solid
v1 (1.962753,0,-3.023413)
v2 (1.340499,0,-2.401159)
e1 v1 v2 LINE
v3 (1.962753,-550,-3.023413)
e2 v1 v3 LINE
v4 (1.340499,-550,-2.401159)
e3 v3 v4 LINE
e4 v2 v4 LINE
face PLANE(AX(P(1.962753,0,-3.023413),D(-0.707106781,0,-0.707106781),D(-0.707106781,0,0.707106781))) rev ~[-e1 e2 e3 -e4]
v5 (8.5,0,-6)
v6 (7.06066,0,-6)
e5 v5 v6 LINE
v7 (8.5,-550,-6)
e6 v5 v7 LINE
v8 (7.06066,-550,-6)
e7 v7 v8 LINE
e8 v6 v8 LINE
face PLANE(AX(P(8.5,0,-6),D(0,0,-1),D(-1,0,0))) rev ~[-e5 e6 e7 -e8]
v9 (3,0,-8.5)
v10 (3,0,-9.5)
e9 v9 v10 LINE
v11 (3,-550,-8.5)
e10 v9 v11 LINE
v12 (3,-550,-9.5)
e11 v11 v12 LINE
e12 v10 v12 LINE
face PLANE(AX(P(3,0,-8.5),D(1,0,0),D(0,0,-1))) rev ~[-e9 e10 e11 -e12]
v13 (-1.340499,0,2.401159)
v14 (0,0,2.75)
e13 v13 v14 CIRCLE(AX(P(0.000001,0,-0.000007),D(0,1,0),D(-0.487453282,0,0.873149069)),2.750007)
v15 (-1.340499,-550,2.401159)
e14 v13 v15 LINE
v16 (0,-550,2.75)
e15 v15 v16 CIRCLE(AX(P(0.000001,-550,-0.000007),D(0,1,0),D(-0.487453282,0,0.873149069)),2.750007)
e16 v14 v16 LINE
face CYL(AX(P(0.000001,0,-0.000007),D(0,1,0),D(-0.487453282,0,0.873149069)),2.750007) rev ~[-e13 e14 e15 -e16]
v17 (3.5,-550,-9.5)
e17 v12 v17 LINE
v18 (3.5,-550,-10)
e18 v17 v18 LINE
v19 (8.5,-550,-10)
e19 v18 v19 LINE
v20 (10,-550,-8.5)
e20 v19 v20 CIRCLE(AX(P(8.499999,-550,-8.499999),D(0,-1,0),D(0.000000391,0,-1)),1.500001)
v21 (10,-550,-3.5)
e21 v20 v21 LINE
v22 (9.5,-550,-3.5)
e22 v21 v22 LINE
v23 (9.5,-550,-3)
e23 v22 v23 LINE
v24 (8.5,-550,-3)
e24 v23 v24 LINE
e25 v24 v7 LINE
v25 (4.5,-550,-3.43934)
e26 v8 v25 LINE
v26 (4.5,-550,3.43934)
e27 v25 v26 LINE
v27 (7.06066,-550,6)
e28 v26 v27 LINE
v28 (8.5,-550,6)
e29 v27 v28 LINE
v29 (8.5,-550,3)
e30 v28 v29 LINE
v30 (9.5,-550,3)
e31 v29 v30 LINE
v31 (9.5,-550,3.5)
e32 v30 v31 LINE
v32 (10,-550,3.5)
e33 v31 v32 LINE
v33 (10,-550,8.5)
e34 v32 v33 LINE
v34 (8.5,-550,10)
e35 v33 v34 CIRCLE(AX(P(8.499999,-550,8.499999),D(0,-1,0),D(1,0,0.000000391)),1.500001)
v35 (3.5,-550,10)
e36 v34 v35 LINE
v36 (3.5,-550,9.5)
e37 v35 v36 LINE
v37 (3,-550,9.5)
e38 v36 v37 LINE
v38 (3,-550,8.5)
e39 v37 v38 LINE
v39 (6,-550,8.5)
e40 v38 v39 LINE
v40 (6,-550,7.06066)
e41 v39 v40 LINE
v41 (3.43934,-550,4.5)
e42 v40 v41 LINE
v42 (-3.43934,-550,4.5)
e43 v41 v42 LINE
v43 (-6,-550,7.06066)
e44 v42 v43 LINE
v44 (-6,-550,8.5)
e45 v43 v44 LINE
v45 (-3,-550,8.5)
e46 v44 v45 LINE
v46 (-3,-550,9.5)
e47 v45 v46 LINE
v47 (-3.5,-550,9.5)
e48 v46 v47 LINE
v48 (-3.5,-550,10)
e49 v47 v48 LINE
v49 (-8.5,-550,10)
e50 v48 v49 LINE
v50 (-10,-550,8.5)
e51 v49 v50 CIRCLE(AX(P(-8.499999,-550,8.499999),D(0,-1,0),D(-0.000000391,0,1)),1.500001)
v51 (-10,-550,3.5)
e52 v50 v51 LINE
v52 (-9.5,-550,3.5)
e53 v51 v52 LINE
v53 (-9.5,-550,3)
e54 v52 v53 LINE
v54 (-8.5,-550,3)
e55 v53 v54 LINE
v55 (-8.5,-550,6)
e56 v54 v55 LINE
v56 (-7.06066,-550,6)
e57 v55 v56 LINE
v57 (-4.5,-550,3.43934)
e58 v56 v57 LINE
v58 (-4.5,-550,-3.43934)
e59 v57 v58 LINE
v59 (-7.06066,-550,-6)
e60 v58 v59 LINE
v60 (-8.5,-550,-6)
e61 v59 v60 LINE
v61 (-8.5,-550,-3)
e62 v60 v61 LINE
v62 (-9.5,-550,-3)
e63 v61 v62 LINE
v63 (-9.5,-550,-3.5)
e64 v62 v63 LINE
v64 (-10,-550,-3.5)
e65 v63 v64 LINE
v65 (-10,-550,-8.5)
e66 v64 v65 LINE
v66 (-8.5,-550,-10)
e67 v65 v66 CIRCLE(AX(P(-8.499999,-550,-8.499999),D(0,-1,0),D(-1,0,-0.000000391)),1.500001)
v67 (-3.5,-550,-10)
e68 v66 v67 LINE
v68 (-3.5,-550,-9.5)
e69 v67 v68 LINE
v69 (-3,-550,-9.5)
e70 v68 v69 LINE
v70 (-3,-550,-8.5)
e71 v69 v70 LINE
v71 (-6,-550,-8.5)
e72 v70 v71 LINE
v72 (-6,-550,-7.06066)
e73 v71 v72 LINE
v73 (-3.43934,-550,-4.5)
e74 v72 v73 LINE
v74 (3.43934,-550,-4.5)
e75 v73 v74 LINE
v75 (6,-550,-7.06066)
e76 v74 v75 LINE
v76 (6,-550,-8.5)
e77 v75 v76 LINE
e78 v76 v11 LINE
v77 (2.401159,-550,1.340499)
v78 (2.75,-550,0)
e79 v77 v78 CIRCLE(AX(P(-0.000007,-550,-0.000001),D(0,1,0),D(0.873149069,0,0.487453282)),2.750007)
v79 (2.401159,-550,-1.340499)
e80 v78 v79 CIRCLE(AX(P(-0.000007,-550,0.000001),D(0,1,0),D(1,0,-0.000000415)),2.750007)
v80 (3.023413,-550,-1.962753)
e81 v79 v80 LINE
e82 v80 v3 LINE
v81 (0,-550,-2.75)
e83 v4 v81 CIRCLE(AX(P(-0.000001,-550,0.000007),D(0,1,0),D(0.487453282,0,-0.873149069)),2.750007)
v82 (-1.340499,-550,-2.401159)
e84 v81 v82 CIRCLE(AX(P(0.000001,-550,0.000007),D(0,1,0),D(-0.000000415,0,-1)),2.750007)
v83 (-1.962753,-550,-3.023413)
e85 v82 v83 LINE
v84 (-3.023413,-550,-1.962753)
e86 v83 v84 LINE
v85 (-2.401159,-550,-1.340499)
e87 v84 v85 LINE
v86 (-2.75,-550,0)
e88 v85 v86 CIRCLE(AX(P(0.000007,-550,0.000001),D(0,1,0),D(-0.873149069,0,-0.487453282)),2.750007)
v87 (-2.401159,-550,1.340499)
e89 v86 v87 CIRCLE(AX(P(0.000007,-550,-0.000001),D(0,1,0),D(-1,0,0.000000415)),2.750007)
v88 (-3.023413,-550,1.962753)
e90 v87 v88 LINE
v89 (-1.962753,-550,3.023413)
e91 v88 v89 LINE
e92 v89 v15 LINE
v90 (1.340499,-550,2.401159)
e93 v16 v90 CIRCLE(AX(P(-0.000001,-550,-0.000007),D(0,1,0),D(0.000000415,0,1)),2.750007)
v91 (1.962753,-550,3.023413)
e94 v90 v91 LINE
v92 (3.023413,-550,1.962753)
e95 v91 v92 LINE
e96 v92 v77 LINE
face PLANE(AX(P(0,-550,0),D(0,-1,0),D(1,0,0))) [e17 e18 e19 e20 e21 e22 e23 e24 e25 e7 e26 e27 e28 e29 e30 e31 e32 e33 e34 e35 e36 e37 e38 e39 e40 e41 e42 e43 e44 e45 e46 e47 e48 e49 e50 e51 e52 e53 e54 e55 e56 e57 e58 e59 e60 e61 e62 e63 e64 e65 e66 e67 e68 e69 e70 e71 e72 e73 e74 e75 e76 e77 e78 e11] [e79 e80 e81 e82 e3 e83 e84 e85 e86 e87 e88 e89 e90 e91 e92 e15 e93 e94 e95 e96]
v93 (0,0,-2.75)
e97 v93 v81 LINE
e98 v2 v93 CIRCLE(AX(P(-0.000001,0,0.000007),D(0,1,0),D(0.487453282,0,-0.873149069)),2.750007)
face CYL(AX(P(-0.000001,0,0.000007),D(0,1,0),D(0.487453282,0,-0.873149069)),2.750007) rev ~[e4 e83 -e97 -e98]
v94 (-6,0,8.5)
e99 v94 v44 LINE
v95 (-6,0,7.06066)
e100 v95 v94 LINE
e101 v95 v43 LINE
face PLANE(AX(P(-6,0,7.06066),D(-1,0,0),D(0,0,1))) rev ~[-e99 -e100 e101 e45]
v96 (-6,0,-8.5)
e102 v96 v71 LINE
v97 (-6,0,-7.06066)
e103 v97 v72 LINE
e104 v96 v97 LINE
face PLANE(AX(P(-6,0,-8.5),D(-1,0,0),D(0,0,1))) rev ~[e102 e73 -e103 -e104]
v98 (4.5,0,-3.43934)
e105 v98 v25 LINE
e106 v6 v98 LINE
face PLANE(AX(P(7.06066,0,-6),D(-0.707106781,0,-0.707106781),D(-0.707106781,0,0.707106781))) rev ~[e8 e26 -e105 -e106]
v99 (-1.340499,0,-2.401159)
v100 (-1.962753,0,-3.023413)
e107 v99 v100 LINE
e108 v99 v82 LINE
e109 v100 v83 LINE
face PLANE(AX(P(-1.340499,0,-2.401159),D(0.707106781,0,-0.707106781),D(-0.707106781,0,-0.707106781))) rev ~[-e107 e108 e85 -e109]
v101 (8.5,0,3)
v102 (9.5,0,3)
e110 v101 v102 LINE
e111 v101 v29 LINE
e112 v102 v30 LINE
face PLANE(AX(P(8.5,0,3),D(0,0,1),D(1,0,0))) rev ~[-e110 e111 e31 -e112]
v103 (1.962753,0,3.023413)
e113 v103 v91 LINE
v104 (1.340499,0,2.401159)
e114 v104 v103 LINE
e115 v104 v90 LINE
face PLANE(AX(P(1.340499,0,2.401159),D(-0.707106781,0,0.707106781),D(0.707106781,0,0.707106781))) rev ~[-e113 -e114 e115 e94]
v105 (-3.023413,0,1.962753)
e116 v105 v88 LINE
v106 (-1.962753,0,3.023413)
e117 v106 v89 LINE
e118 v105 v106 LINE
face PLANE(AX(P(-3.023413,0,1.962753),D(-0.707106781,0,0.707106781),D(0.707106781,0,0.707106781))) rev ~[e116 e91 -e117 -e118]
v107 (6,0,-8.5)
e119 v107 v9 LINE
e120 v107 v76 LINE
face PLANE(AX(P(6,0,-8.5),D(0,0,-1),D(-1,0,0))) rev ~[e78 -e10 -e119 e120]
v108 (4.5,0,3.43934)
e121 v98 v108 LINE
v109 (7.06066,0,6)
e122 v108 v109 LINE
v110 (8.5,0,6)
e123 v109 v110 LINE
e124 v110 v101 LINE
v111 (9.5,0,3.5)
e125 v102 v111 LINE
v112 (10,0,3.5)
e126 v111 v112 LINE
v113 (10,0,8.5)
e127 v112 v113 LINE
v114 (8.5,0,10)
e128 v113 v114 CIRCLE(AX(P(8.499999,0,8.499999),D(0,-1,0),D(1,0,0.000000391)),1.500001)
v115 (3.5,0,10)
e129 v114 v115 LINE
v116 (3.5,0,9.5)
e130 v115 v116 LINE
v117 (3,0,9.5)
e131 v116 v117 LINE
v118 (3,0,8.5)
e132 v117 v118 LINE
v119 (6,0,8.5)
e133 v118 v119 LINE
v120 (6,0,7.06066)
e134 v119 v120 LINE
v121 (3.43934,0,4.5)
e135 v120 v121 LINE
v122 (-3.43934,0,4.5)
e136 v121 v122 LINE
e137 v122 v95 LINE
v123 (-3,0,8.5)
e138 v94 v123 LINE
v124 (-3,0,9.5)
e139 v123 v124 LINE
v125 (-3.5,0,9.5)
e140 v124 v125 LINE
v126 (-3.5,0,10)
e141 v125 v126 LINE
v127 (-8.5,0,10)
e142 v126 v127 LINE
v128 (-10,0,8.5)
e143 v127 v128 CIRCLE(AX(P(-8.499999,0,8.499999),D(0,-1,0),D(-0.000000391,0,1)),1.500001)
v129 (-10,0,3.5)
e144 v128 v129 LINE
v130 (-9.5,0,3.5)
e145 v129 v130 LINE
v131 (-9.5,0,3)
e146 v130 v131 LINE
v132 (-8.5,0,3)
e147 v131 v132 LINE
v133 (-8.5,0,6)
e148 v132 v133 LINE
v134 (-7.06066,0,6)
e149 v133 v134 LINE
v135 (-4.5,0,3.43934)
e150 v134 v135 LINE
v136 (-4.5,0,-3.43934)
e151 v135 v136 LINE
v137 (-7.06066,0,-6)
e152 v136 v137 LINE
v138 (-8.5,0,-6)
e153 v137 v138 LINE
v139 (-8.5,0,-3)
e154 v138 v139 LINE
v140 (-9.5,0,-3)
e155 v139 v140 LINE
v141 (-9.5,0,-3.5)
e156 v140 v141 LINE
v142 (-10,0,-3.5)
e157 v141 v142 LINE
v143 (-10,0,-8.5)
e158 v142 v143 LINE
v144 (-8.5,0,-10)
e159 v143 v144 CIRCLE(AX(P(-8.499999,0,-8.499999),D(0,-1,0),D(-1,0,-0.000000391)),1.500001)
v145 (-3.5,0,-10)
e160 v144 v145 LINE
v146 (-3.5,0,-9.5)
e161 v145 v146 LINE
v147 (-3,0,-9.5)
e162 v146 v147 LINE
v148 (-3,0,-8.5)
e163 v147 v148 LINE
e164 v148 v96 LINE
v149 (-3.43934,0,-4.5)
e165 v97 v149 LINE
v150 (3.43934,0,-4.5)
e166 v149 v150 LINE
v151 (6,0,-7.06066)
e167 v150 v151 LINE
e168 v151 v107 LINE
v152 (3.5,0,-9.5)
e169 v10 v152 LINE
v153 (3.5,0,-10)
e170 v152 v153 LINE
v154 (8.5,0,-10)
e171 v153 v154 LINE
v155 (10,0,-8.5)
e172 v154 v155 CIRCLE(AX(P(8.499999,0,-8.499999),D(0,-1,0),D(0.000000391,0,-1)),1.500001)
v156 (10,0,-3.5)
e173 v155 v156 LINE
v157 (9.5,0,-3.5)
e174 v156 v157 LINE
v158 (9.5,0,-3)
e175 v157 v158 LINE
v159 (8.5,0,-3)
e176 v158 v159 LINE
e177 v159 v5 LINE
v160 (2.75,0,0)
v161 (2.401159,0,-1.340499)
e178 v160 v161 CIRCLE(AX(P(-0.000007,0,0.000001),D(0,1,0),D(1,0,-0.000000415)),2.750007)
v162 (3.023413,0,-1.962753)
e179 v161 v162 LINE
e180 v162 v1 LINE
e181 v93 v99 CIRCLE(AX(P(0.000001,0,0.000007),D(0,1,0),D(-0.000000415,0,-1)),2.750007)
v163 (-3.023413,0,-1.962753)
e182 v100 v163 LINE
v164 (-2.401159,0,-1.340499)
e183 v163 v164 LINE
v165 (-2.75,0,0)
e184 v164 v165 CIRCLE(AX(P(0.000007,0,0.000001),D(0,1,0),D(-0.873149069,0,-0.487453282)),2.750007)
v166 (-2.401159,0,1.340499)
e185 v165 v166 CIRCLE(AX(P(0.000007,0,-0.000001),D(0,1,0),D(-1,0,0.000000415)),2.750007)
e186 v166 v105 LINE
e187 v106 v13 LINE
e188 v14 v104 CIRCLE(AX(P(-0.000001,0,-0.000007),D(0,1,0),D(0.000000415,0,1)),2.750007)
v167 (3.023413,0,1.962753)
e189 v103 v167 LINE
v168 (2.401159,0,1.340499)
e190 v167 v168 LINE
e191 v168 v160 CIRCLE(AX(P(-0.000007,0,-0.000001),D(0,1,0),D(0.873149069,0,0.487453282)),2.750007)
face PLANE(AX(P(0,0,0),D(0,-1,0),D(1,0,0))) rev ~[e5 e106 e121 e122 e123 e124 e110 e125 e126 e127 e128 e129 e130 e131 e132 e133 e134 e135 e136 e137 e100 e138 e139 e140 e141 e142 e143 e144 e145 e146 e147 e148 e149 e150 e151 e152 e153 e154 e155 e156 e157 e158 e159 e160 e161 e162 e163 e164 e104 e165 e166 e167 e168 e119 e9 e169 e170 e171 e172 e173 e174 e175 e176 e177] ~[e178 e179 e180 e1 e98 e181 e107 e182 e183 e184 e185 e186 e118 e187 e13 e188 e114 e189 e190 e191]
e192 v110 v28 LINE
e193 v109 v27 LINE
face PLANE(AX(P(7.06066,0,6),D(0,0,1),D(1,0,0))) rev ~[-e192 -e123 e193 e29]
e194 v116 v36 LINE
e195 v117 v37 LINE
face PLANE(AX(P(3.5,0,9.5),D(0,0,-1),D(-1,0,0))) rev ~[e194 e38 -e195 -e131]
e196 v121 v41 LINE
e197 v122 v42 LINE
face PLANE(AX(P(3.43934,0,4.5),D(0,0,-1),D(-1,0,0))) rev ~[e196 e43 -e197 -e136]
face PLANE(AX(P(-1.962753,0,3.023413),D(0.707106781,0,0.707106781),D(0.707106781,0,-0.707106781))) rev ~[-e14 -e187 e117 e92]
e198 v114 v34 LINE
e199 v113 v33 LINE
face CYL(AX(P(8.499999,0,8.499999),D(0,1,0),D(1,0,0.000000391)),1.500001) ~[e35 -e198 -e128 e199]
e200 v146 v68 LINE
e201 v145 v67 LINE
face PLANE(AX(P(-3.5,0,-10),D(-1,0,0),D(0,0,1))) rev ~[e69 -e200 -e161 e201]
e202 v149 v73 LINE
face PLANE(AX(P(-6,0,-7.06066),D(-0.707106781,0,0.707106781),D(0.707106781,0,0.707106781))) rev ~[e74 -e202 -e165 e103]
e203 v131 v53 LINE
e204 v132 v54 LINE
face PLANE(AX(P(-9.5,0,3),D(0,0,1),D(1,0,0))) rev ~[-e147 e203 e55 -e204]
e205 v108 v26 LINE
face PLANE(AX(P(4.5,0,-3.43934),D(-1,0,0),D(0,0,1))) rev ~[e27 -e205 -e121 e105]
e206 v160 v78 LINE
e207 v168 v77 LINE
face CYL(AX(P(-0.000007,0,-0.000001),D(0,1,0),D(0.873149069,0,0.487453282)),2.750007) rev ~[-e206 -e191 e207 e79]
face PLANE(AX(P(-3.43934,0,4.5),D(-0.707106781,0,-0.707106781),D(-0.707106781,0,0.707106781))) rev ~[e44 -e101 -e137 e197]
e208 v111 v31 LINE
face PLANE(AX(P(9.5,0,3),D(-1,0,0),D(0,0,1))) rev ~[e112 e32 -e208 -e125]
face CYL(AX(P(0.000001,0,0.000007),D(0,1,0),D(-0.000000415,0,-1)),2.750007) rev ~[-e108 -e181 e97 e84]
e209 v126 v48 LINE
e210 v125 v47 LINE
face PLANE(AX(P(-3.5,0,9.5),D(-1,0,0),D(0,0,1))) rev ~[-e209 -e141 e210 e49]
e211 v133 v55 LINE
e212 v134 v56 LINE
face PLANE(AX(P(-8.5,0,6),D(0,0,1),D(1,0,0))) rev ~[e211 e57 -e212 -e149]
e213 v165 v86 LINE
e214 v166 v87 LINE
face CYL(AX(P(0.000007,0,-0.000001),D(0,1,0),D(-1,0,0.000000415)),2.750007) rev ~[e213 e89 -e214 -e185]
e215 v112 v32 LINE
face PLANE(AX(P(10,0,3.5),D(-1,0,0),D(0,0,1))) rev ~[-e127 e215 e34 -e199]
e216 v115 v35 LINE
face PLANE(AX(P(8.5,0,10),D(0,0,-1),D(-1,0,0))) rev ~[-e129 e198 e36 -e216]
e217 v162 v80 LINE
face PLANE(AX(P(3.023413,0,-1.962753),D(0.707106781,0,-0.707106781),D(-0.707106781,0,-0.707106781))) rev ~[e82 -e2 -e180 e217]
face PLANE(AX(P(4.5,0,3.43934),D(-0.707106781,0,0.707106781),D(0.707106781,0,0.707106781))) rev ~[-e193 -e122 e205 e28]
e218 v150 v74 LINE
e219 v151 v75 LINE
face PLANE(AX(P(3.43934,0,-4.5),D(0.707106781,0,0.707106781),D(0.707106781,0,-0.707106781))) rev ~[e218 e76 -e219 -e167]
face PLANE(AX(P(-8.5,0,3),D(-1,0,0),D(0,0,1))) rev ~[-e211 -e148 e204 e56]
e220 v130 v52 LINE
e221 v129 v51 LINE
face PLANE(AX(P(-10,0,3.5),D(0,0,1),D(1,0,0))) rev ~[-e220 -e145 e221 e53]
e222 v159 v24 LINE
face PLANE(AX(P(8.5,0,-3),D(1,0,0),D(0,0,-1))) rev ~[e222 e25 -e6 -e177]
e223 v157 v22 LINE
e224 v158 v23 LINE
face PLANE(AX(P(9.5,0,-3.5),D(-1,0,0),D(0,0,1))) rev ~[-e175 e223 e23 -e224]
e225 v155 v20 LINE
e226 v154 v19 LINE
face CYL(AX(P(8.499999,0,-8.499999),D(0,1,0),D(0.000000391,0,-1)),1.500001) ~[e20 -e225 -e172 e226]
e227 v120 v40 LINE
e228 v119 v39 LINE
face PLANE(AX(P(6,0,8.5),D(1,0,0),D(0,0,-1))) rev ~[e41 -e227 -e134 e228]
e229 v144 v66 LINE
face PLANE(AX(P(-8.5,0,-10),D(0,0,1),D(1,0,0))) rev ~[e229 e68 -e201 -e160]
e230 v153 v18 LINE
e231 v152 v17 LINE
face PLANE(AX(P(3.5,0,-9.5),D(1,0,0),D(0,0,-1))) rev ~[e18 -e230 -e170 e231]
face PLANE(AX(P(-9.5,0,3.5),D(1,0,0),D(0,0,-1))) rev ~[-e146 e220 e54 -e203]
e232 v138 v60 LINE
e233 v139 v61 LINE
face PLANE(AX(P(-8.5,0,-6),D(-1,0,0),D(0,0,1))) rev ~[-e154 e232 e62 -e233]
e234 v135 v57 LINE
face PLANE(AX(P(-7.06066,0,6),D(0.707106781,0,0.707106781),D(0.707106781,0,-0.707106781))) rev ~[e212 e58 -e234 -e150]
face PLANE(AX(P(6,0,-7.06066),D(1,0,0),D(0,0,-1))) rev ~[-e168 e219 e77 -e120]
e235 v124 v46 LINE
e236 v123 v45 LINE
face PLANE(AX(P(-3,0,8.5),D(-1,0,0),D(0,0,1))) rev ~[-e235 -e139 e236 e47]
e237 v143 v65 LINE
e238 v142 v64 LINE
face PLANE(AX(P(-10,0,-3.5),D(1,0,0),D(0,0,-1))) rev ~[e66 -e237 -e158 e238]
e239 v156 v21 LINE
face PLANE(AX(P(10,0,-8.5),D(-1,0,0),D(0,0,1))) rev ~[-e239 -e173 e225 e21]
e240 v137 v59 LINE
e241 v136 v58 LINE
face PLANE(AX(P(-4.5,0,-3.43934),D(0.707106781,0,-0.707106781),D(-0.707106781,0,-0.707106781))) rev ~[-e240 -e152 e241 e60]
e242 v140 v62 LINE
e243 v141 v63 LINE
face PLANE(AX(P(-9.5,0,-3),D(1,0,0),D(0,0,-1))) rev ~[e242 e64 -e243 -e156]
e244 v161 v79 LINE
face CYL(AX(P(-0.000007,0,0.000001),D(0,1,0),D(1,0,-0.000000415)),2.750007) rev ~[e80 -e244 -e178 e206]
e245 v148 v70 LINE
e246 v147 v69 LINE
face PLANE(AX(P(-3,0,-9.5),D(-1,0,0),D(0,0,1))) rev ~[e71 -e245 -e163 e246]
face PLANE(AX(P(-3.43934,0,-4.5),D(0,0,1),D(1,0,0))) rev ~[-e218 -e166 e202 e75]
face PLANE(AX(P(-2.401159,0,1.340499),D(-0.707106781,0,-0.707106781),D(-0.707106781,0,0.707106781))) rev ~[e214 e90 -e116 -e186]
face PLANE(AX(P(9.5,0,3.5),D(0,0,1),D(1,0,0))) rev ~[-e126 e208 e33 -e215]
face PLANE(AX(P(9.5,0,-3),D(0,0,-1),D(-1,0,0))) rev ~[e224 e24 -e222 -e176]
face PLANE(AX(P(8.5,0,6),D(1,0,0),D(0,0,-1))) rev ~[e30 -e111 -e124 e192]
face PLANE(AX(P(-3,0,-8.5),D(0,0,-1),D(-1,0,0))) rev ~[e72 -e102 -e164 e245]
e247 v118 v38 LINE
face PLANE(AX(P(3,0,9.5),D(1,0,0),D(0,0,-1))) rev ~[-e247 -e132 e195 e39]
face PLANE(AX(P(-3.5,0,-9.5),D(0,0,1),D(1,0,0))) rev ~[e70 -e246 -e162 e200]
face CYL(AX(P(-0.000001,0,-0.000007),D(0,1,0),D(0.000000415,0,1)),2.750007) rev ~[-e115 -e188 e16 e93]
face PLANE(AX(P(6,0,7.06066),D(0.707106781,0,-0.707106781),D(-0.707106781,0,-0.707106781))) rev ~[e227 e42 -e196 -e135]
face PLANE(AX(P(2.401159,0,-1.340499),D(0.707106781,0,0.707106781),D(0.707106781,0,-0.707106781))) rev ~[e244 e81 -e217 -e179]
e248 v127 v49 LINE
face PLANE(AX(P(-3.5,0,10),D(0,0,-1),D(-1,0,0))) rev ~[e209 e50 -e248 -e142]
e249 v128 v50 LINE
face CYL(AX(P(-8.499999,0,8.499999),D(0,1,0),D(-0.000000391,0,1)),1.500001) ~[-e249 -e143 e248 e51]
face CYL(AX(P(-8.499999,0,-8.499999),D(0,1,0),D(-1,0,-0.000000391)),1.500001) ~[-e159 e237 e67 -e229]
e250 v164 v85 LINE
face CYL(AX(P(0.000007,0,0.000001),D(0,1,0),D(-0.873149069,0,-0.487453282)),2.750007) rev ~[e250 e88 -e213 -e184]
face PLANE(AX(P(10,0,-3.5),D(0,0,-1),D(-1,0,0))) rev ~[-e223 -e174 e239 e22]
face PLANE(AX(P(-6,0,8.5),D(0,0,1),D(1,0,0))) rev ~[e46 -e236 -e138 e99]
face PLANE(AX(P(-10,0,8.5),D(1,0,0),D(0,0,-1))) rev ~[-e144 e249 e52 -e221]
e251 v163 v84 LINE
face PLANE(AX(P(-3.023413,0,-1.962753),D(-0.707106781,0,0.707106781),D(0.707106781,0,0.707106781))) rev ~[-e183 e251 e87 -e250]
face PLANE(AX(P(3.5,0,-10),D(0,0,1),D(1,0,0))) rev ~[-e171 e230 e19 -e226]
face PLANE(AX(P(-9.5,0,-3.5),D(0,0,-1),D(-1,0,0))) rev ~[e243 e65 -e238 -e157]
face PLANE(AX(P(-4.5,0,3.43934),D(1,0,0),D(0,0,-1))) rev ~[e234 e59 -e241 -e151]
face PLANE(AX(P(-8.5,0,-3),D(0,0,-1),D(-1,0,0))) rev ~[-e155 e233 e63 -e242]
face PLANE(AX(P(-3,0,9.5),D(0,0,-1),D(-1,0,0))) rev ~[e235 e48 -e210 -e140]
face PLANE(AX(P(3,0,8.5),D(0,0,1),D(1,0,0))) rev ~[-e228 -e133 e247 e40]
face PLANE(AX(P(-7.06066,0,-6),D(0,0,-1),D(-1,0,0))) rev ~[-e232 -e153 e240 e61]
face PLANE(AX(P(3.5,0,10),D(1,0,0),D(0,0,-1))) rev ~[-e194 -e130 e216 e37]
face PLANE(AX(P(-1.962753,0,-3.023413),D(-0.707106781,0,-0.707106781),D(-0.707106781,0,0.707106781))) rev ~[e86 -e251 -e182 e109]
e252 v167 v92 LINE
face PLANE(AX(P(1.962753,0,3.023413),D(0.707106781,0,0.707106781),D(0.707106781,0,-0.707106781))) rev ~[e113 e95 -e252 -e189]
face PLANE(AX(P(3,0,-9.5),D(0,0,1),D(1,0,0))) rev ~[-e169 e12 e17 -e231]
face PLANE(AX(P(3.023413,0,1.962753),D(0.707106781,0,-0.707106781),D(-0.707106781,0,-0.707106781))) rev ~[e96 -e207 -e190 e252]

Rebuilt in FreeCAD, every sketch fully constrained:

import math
import FreeCAD as App
import Part
import Sketcher

V = App.Vector

doc = App.newDocument("Part")
params = doc.addObject("Spreadsheet::Sheet", "Params")
for row, (alias, value) in enumerate([
    ("sketch1_radius", "1.500001 mm"),
    ("sketch1_width", "3 mm"),
    ("sketch1_width2", "5 mm"),
    ("sketch1_width3", "1 mm"),
    ("sketch1_length", "1.5 mm"),
    ("pad1_length", "550 mm"),
], start=1):
    params.set(f"A{row}", alias)
    params.set(f"B{row}", "=" + value)
    params.setAlias(f"B{row}", alias)

body = doc.addObject("PartDesign::Body", "Body")

# Sketch on XZ plane
sketch1 = doc.addObject("Sketcher::SketchObject", "Sketch")
body.addObject(sketch1)
sketch1.AttachmentSupport = (doc.XZ_Plane, [""])
sketch1.MapMode = "FlatFace"
sketch1.addGeometry(Part.LineSegment(V(3.4, 4.5, 0), V(-3.4, 4.5, 0)), False)
sketch1.addGeometry(Part.LineSegment(V(-3.4, 4.5, 0), V(-6, 7.1, 0)), False)
sketch1.addGeometry(Part.LineSegment(V(-6, 7.1, 0), V(-6, 8.5, 0)), False)
sketch1.addGeometry(Part.LineSegment(V(-6, 8.5, 0), V(-3, 8.5, 0)), False)
sketch1.addGeometry(Part.LineSegment(V(-3, 8.5, 0), V(-3, 9.5, 0)), False)
sketch1.addGeometry(Part.LineSegment(V(-3, 9.5, 0), V(-3.5, 9.5, 0)), False)
sketch1.addGeometry(Part.LineSegment(V(-3.5, 9.5, 0), V(-3.5, 10, 0)), False)
sketch1.addGeometry(Part.LineSegment(V(-3.5, 10, 0), V(-8.5, 10, 0)), False)
sketch1.addGeometry(Part.ArcOfCircle(Part.Circle(V(-8.5, 8.5, 0), V(0, 0, 1), 1.5), math.radians(90), math.radians(180)), False)
sketch1.addGeometry(Part.LineSegment(V(-10, 8.5, 0), V(-10, 3.5, 0)), False)
sketch1.addGeometry(Part.LineSegment(V(-10, 3.5, 0), V(-9.5, 3.5, 0)), False)
sketch1.addGeometry(Part.LineSegment(V(-9.5, 3.5, 0), V(-9.5, 3, 0)), False)
sketch1.addGeometry(Part.LineSegment(V(-9.5, 3, 0), V(-8.5, 3, 0)), False)
sketch1.addGeometry(Part.LineSegment(V(-8.5, 3, 0), V(-8.5, 6, 0)), False)
sketch1.addGeometry(Part.LineSegment(V(-8.5, 6, 0), V(-7.1, 6, 0)), False)
sketch1.addGeometry(Part.LineSegment(V(-7.1, 6, 0), V(-4.5, 3.4, 0)), False)
sketch1.addGeometry(Part.LineSegment(V(-4.5, 3.4, 0), V(-4.5, -3.4, 0)), False)
sketch1.addGeometry(Part.LineSegment(V(-4.5, -3.4, 0), V(-7.1, -6, 0)), False)
sketch1.addGeometry(Part.LineSegment(V(-7.1, -6, 0), V(-8.5, -6, 0)), False)
sketch1.addGeometry(Part.LineSegment(V(-8.5, -6, 0), V(-8.5, -3, 0)), False)
sketch1.addGeometry(Part.LineSegment(V(-8.5, -3, 0), V(-9.5, -3, 0)), False)
sketch1.addGeometry(Part.LineSegment(V(-9.5, -3, 0), V(-9.5, -3.5, 0)), False)
sketch1.addGeometry(Part.LineSegment(V(-9.5, -3.5, 0), V(-10, -3.5, 0)), False)
sketch1.addGeometry(Part.LineSegment(V(-10, -3.5, 0), V(-10, -8.5, 0)), False)
sketch1.addGeometry(Part.ArcOfCircle(Part.Circle(V(-8.5, -8.5, 0), V(0, 0, 1), 1.5), math.radians(-180), math.radians(-90)), False)
sketch1.addGeometry(Part.LineSegment(V(-8.5, -10, 0), V(-3.5, -10, 0)), False)
sketch1.addGeometry(Part.LineSegment(V(-3.5, -10, 0), V(-3.5, -9.5, 0)), False)
sketch1.addGeometry(Part.LineSegment(V(-3.5, -9.5, 0), V(-3, -9.5, 0)), False)
sketch1.addGeometry(Part.LineSegment(V(-3, -9.5, 0), V(-3, -8.5, 0)), False)
sketch1.addGeometry(Part.LineSegment(V(-3, -8.5, 0), V(-6, -8.5, 0)), False)
sketch1.addGeometry(Part.LineSegment(V(-6, -8.5, 0), V(-6, -7.1, 0)), False)
sketch1.addGeometry(Part.LineSegment(V(-6, -7.1, 0), V(-3.4, -4.5, 0)), False)
sketch1.addGeometry(Part.LineSegment(V(-3.4, -4.5, 0), V(3.4, -4.5, 0)), False)
sketch1.addGeometry(Part.LineSegment(V(3.4, -4.5, 0), V(6, -7.1, 0)), False)
sketch1.addGeometry(Part.LineSegment(V(6, -7.1, 0), V(6, -8.5, 0)), False)
sketch1.addGeometry(Part.LineSegment(V(6, -8.5, 0), V(3, -8.5, 0)), False)
sketch1.addGeometry(Part.LineSegment(V(3, -8.5, 0), V(3, -9.5, 0)), False)
sketch1.addGeometry(Part.LineSegment(V(3, -9.5, 0), V(3.5, -9.5, 0)), False)
sketch1.addGeometry(Part.LineSegment(V(3.5, -9.5, 0), V(3.5, -10, 0)), False)
sketch1.addGeometry(Part.LineSegment(V(3.5, -10, 0), V(8.5, -10, 0)), False)
sketch1.addGeometry(Part.ArcOfCircle(Part.Circle(V(8.5, -8.5, 0), V(0, 0, 1), 1.5), math.radians(-90), math.radians(0)), False)
sketch1.addGeometry(Part.LineSegment(V(10, -8.5, 0), V(10, -3.5, 0)), False)
sketch1.addGeometry(Part.LineSegment(V(10, -3.5, 0), V(9.5, -3.5, 0)), False)
sketch1.addGeometry(Part.LineSegment(V(9.5, -3.5, 0), V(9.5, -3, 0)), False)
sketch1.addGeometry(Part.LineSegment(V(9.5, -3, 0), V(8.5, -3, 0)), False)
sketch1.addGeometry(Part.LineSegment(V(8.5, -3, 0), V(8.5, -6, 0)), False)
sketch1.addGeometry(Part.LineSegment(V(8.5, -6, 0), V(7.1, -6, 0)), False)
sketch1.addGeometry(Part.LineSegment(V(7.1, -6, 0), V(4.5, -3.4, 0)), False)
sketch1.addGeometry(Part.LineSegment(V(4.5, -3.4, 0), V(4.5, 3.4, 0)), False)
sketch1.addGeometry(Part.LineSegment(V(4.5, 3.4, 0), V(7.1, 6, 0)), False)
sketch1.addGeometry(Part.LineSegment(V(7.1, 6, 0), V(8.5, 6, 0)), False)
sketch1.addGeometry(Part.LineSegment(V(8.5, 6, 0), V(8.5, 3, 0)), False)
sketch1.addGeometry(Part.LineSegment(V(8.5, 3, 0), V(9.5, 3, 0)), False)
sketch1.addGeometry(Part.LineSegment(V(9.5, 3, 0), V(9.5, 3.5, 0)), False)
sketch1.addGeometry(Part.LineSegment(V(9.5, 3.5, 0), V(10, 3.5, 0)), False)
sketch1.addGeometry(Part.LineSegment(V(10, 3.5, 0), V(10, 8.5, 0)), False)
sketch1.addGeometry(Part.ArcOfCircle(Part.Circle(V(8.5, 8.5, 0), V(0, 0, 1), 1.5), math.radians(0), math.radians(90)), False)
sketch1.addGeometry(Part.LineSegment(V(8.5, 10, 0), V(3.5, 10, 0)), False)
sketch1.addGeometry(Part.LineSegment(V(3.5, 10, 0), V(3.5, 9.5, 0)), False)
sketch1.addGeometry(Part.LineSegment(V(3.5, 9.5, 0), V(3, 9.5, 0)), False)
sketch1.addGeometry(Part.LineSegment(V(3, 9.5, 0), V(3, 8.5, 0)), False)
sketch1.addGeometry(Part.LineSegment(V(3, 8.5, 0), V(6, 8.5, 0)), False)
sketch1.addGeometry(Part.LineSegment(V(6, 8.5, 0), V(6, 7.1, 0)), False)
sketch1.addGeometry(Part.LineSegment(V(6, 7.1, 0), V(3.4, 4.5, 0)), False)
sketch1.addGeometry(Part.LineSegment(V(-2, 3, 0), V(-1.3, 2.4, 0)), False)
sketch1.addGeometry(Part.ArcOfCircle(Part.Circle(V(0, 0, 0), V(0, 0, 1), 2.8), math.radians(90), math.radians(119)), False)
sketch1.addGeometry(Part.ArcOfCircle(Part.Circle(V(0, 0, 0), V(0, 0, 1), 2.8), math.radians(61), math.radians(90)), False)
sketch1.addGeometry(Part.LineSegment(V(1.3, 2.4, 0), V(2, 3, 0)), False)
sketch1.addGeometry(Part.LineSegment(V(2, 3, 0), V(3, 2, 0)), False)
sketch1.addGeometry(Part.LineSegment(V(3, 2, 0), V(2.4, 1.3, 0)), False)
sketch1.addGeometry(Part.ArcOfCircle(Part.Circle(V(0, 0, 0), V(0, 0, 1), 2.8), math.radians(0), math.radians(29)), False)
sketch1.addGeometry(Part.ArcOfCircle(Part.Circle(V(0, 0, 0), V(0, 0, 1), 2.8), math.radians(-29), math.radians(0)), False)
sketch1.addGeometry(Part.LineSegment(V(2.4, -1.3, 0), V(3, -2, 0)), False)
sketch1.addGeometry(Part.LineSegment(V(3, -2, 0), V(2, -3, 0)), False)
sketch1.addGeometry(Part.LineSegment(V(2, -3, 0), V(1.3, -2.4, 0)), False)
sketch1.addGeometry(Part.ArcOfCircle(Part.Circle(V(0, 0, 0), V(0, 0, 1), 2.8), math.radians(-90), math.radians(-61)), False)
sketch1.addGeometry(Part.ArcOfCircle(Part.Circle(V(0, 0, 0), V(0, 0, 1), 2.8), math.radians(-119), math.radians(-90)), False)
sketch1.addGeometry(Part.LineSegment(V(-1.3, -2.4, 0), V(-2, -3, 0)), False)
sketch1.addGeometry(Part.LineSegment(V(-2, -3, 0), V(-3, -2, 0)), False)
sketch1.addGeometry(Part.LineSegment(V(-3, -2, 0), V(-2.4, -1.3, 0)), False)
sketch1.addGeometry(Part.ArcOfCircle(Part.Circle(V(0, 0, 0), V(0, 0, 1), 2.8), math.radians(-180), math.radians(-151)), False)
sketch1.addGeometry(Part.ArcOfCircle(Part.Circle(V(0, 0, 0), V(0, 0, 1), 2.8), math.radians(151), math.radians(180)), False)
sketch1.addGeometry(Part.LineSegment(V(-2.4, 1.3, 0), V(-3, 2, 0)), False)
sketch1.addGeometry(Part.LineSegment(V(-3, 2, 0), V(-2, 3, 0)), False)
sketch1.addConstraint(Sketcher.Constraint("Coincident", 0, 2, 1, 1))
sketch1.addConstraint(Sketcher.Constraint("Coincident", 1, 2, 2, 1))
sketch1.addConstraint(Sketcher.Constraint("Coincident", 2, 2, 3, 1))
sketch1.addConstraint(Sketcher.Constraint("Coincident", 3, 2, 4, 1))
sketch1.addConstraint(Sketcher.Constraint("Coincident", 4, 2, 5, 1))
sketch1.addConstraint(Sketcher.Constraint("Coincident", 5, 2, 6, 1))
sketch1.addConstraint(Sketcher.Constraint("Coincident", 6, 2, 7, 1))
sketch1.addConstraint(Sketcher.Constraint("Tangent", 7, 2, 8, 1))
sketch1.addConstraint(Sketcher.Constraint("Tangent", 8, 2, 9, 1))
sketch1.addConstraint(Sketcher.Constraint("Coincident", 9, 2, 10, 1))
sketch1.addConstraint(Sketcher.Constraint("Coincident", 10, 2, 11, 1))
sketch1.addConstraint(Sketcher.Constraint("Coincident", 11, 2, 12, 1))
sketch1.addConstraint(Sketcher.Constraint("Coincident", 12, 2, 13, 1))
sketch1.addConstraint(Sketcher.Constraint("Coincident", 13, 2, 14, 1))
sketch1.addConstraint(Sketcher.Constraint("Coincident", 14, 2, 15, 1))
sketch1.addConstraint(Sketcher.Constraint("Coincident", 15, 2, 16, 1))
sketch1.addConstraint(Sketcher.Constraint("Coincident", 16, 2, 17, 1))
sketch1.addConstraint(Sketcher.Constraint("Coincident", 17, 2, 18, 1))
sketch1.addConstraint(Sketcher.Constraint("Coincident", 18, 2, 19, 1))
sketch1.addConstraint(Sketcher.Constraint("Coincident", 19, 2, 20, 1))
sketch1.addConstraint(Sketcher.Constraint("Coincident", 20, 2, 21, 1))
sketch1.addConstraint(Sketcher.Constraint("Coincident", 21, 2, 22, 1))
sketch1.addConstraint(Sketcher.Constraint("Coincident", 22, 2, 23, 1))
sketch1.addConstraint(Sketcher.Constraint("Tangent", 23, 2, 24, 1))
sketch1.addConstraint(Sketcher.Constraint("Tangent", 24, 2, 25, 1))
sketch1.addConstraint(Sketcher.Constraint("Coincident", 25, 2, 26, 1))
sketch1.addConstraint(Sketcher.Constraint("Coincident", 26, 2, 27, 1))
sketch1.addConstraint(Sketcher.Constraint("Coincident", 27, 2, 28, 1))
sketch1.addConstraint(Sketcher.Constraint("Coincident", 28, 2, 29, 1))
sketch1.addConstraint(Sketcher.Constraint("Coincident", 29, 2, 30, 1))
sketch1.addConstraint(Sketcher.Constraint("Coincident", 30, 2, 31, 1))
sketch1.addConstraint(Sketcher.Constraint("Coincident", 31, 2, 32, 1))
sketch1.addConstraint(Sketcher.Constraint("Coincident", 32, 2, 33, 1))
sketch1.addConstraint(Sketcher.Constraint("Coincident", 33, 2, 34, 1))
sketch1.addConstraint(Sketcher.Constraint("Coincident", 34, 2, 35, 1))
sketch1.addConstraint(Sketcher.Constraint("Coincident", 35, 2, 36, 1))
sketch1.addConstraint(Sketcher.Constraint("Coincident", 36, 2, 37, 1))
sketch1.addConstraint(Sketcher.Constraint("Coincident", 37, 2, 38, 1))
sketch1.addConstraint(Sketcher.Constraint("Coincident", 38, 2, 39, 1))
sketch1.addConstraint(Sketcher.Constraint("Tangent", 39, 2, 40, 1))
sketch1.addConstraint(Sketcher.Constraint("Tangent", 40, 2, 41, 1))
sketch1.addConstraint(Sketcher.Constraint("Coincident", 41, 2, 42, 1))
sketch1.addConstraint(Sketcher.Constraint("Coincident", 42, 2, 43, 1))
sketch1.addConstraint(Sketcher.Constraint("Coincident", 43, 2, 44, 1))
sketch1.addConstraint(Sketcher.Constraint("Coincident", 44, 2, 45, 1))
sketch1.addConstraint(Sketcher.Constraint("Coincident", 45, 2, 46, 1))
sketch1.addConstraint(Sketcher.Constraint("Coincident", 46, 2, 47, 1))
sketch1.addConstraint(Sketcher.Constraint("Coincident", 47, 2, 48, 1))
sketch1.addConstraint(Sketcher.Constraint("Coincident", 48, 2, 49, 1))
sketch1.addConstraint(Sketcher.Constraint("Coincident", 49, 2, 50, 1))
sketch1.addConstraint(Sketcher.Constraint("Coincident", 50, 2, 51, 1))
sketch1.addConstraint(Sketcher.Constraint("Coincident", 51, 2, 52, 1))
sketch1.addConstraint(Sketcher.Constraint("Coincident", 52, 2, 53, 1))
sketch1.addConstraint(Sketcher.Constraint("Coincident", 53, 2, 54, 1))
sketch1.addConstraint(Sketcher.Constraint("Coincident", 54, 2, 55, 1))
sketch1.addConstraint(Sketcher.Constraint("Tangent", 55, 2, 56, 1))
sketch1.addConstraint(Sketcher.Constraint("Tangent", 56, 2, 57, 1))
sketch1.addConstraint(Sketcher.Constraint("Coincident", 57, 2, 58, 1))
sketch1.addConstraint(Sketcher.Constraint("Coincident", 58, 2, 59, 1))
sketch1.addConstraint(Sketcher.Constraint("Coincident", 59, 2, 60, 1))
sketch1.addConstraint(Sketcher.Constraint("Coincident", 60, 2, 61, 1))
sketch1.addConstraint(Sketcher.Constraint("Coincident", 61, 2, 62, 1))
sketch1.addConstraint(Sketcher.Constraint("Coincident", 62, 2, 63, 1))
sketch1.addConstraint(Sketcher.Constraint("Coincident", 63, 2, 0, 1))
sketch1.addConstraint(Sketcher.Constraint("Coincident", 64, 2, 65, 2))
sketch1.addConstraint(Sketcher.Constraint("Tangent", 65, 1, 66, 2))
sketch1.addConstraint(Sketcher.Constraint("Coincident", 66, 1, 67, 1))
sketch1.addConstraint(Sketcher.Constraint("Coincident", 67, 2, 68, 1))
sketch1.addConstraint(Sketcher.Constraint("Coincident", 68, 2, 69, 1))
sketch1.addConstraint(Sketcher.Constraint("Coincident", 69, 2, 70, 2))
sketch1.addConstraint(Sketcher.Constraint("Tangent", 70, 1, 71, 2))
sketch1.addConstraint(Sketcher.Constraint("Coincident", 71, 1, 72, 1))
sketch1.addConstraint(Sketcher.Constraint("Coincident", 72, 2, 73, 1))
sketch1.addConstraint(Sketcher.Constraint("Coincident", 73, 2, 74, 1))
sketch1.addConstraint(Sketcher.Constraint("Coincident", 74, 2, 75, 2))
sketch1.addConstraint(Sketcher.Constraint("Tangent", 75, 1, 76, 2))
sketch1.addConstraint(Sketcher.Constraint("Coincident", 76, 1, 77, 1))
sketch1.addConstraint(Sketcher.Constraint("Coincident", 77, 2, 78, 1))
sketch1.addConstraint(Sketcher.Constraint("Coincident", 78, 2, 79, 1))
sketch1.addConstraint(Sketcher.Constraint("Coincident", 79, 2, 80, 2))
sketch1.addConstraint(Sketcher.Constraint("Tangent", 80, 1, 81, 2))
sketch1.addConstraint(Sketcher.Constraint("Coincident", 81, 1, 82, 1))
sketch1.addConstraint(Sketcher.Constraint("Coincident", 82, 2, 83, 1))
sketch1.addConstraint(Sketcher.Constraint("Coincident", 83, 2, 64, 1))
sketch1.addConstraint(Sketcher.Constraint("Horizontal", 0))
sketch1.addConstraint(Sketcher.Constraint("Vertical", 2))
sketch1.addConstraint(Sketcher.Constraint("Horizontal", 3))
sketch1.addConstraint(Sketcher.Constraint("Vertical", 4))
sketch1.addConstraint(Sketcher.Constraint("Horizontal", 5))
sketch1.addConstraint(Sketcher.Constraint("Vertical", 6))
sketch1.addConstraint(Sketcher.Constraint("Horizontal", 7))
sketch1.addConstraint(Sketcher.Constraint("Vertical", 9))
sketch1.addConstraint(Sketcher.Constraint("Horizontal", 10))
sketch1.addConstraint(Sketcher.Constraint("Vertical", 11))
sketch1.addConstraint(Sketcher.Constraint("Horizontal", 12))
sketch1.addConstraint(Sketcher.Constraint("Vertical", 13))
sketch1.addConstraint(Sketcher.Constraint("Horizontal", 14))
sketch1.addConstraint(Sketcher.Constraint("Vertical", 16))
sketch1.addConstraint(Sketcher.Constraint("Horizontal", 18))
sketch1.addConstraint(Sketcher.Constraint("Vertical", 19))
sketch1.addConstraint(Sketcher.Constraint("Horizontal", 20))
sketch1.addConstraint(Sketcher.Constraint("Vertical", 21))
sketch1.addConstraint(Sketcher.Constraint("Horizontal", 22))
sketch1.addConstraint(Sketcher.Constraint("Vertical", 23))
sketch1.addConstraint(Sketcher.Constraint("Horizontal", 25))
sketch1.addConstraint(Sketcher.Constraint("Vertical", 26))
sketch1.addConstraint(Sketcher.Constraint("Horizontal", 27))
sketch1.addConstraint(Sketcher.Constraint("Vertical", 28))
sketch1.addConstraint(Sketcher.Constraint("Horizontal", 29))
sketch1.addConstraint(Sketcher.Constraint("Vertical", 30))
sketch1.addConstraint(Sketcher.Constraint("Horizontal", 32))
sketch1.addConstraint(Sketcher.Constraint("Vertical", 34))
sketch1.addConstraint(Sketcher.Constraint("Horizontal", 35))
sketch1.addConstraint(Sketcher.Constraint("Vertical", 36))
sketch1.addConstraint(Sketcher.Constraint("Horizontal", 37))
sketch1.addConstraint(Sketcher.Constraint("Vertical", 38))
sketch1.addConstraint(Sketcher.Constraint("Horizontal", 39))
sketch1.addConstraint(Sketcher.Constraint("Vertical", 41))
sketch1.addConstraint(Sketcher.Constraint("Horizontal", 42))
sketch1.addConstraint(Sketcher.Constraint("Vertical", 43))
sketch1.addConstraint(Sketcher.Constraint("Horizontal", 44))
sketch1.addConstraint(Sketcher.Constraint("Vertical", 45))
sketch1.addConstraint(Sketcher.Constraint("Horizontal", 46))
sketch1.addConstraint(Sketcher.Constraint("Vertical", 48))
sketch1.addConstraint(Sketcher.Constraint("Horizontal", 50))
sketch1.addConstraint(Sketcher.Constraint("Vertical", 51))
sketch1.addConstraint(Sketcher.Constraint("Horizontal", 52))
sketch1.addConstraint(Sketcher.Constraint("Vertical", 53))
sketch1.addConstraint(Sketcher.Constraint("Horizontal", 54))
sketch1.addConstraint(Sketcher.Constraint("Vertical", 55))
sketch1.addConstraint(Sketcher.Constraint("Horizontal", 57))
sketch1.addConstraint(Sketcher.Constraint("Vertical", 58))
sketch1.addConstraint(Sketcher.Constraint("Horizontal", 59))
sketch1.addConstraint(Sketcher.Constraint("Vertical", 60))
sketch1.addConstraint(Sketcher.Constraint("Horizontal", 61))
sketch1.addConstraint(Sketcher.Constraint("Vertical", 62))
sketch1.addConstraint(Sketcher.Constraint("Coincident", 65, 3, -1, 1))
sketch1.addConstraint(Sketcher.Constraint("Coincident", 70, 3, -1, 1))
sketch1.addConstraint(Sketcher.Constraint("Coincident", 75, 3, -1, 1))
sketch1.addConstraint(Sketcher.Constraint("Coincident", 80, 3, -1, 1))
sketch1.addConstraint(Sketcher.Constraint("Equal", 8, 24))
sketch1.addConstraint(Sketcher.Constraint("Equal", 24, 40))
sketch1.addConstraint(Sketcher.Constraint("Equal", 40, 56))
sketch1.addConstraint(Sketcher.Constraint("Equal", 65, 66))
sketch1.addConstraint(Sketcher.Constraint("Equal", 66, 70))
sketch1.addConstraint(Sketcher.Constraint("Equal", 70, 71))
sketch1.addConstraint(Sketcher.Constraint("Equal", 71, 75))
sketch1.addConstraint(Sketcher.Constraint("Equal", 75, 76))
sketch1.addConstraint(Sketcher.Constraint("Equal", 76, 80))
sketch1.addConstraint(Sketcher.Constraint("Equal", 80, 81))
sketch1.addConstraint(Sketcher.Constraint("Symmetric", 8, 3, 40, 3, -1, 1))
sketch1.addConstraint(Sketcher.Constraint("Symmetric", 24, 3, 56, 3, -1, 1))
sketch1.addConstraint(Sketcher.Constraint("Symmetric", 0, 2, 32, 2, -1, 1))
sketch1.addConstraint(Sketcher.Constraint("Symmetric", 1, 2, 33, 2, -1, 1))
sketch1.addConstraint(Sketcher.Constraint("Symmetric", 3, 2, 35, 2, -1, 1))
sketch1.addConstraint(Sketcher.Constraint("Symmetric", 5, 2, 37, 2, -1, 1))
sketch1.addConstraint(Sketcher.Constraint("Symmetric", 10, 2, 42, 2, -1, 1))
sketch1.addConstraint(Sketcher.Constraint("Symmetric", 12, 2, 44, 2, -1, 1))
sketch1.addConstraint(Sketcher.Constraint("Symmetric", 14, 2, 46, 2, -1, 1))
sketch1.addConstraint(Sketcher.Constraint("Symmetric", 15, 2, 47, 2, -1, 1))
sketch1.addConstraint(Sketcher.Constraint("Symmetric", 17, 2, 49, 2, -1, 1))
sketch1.addConstraint(Sketcher.Constraint("Symmetric", 19, 2, 51, 2, -1, 1))
sketch1.addConstraint(Sketcher.Constraint("Symmetric", 21, 2, 53, 2, -1, 1))
sketch1.addConstraint(Sketcher.Constraint("Symmetric", 26, 2, 58, 2, -1, 1))
sketch1.addConstraint(Sketcher.Constraint("Symmetric", 28, 2, 60, 2, -1, 1))
sketch1.addConstraint(Sketcher.Constraint("Symmetric", 30, 2, 62, 2, -1, 1))
sketch1.addConstraint(Sketcher.Constraint("Symmetric", 67, 2, 77, 2, -1, 1))
sketch1.addConstraint(Sketcher.Constraint("Symmetric", 68, 2, 78, 2, -1, 1))
sketch1.addConstraint(Sketcher.Constraint("Symmetric", 72, 2, 82, 2, -1, 1))
sketch1.addConstraint(Sketcher.Constraint("Symmetric", 73, 2, 83, 2, -1, 1))
sketch1.addConstraint(Sketcher.Constraint("Symmetric", 24, 3, 40, 3, -2))
sketch1.addConstraint(Sketcher.Constraint("Symmetric", 30, 2, 33, 2, -2))
sketch1.addConstraint(Sketcher.Constraint("Symmetric", 28, 2, 35, 2, -2))
sketch1.addConstraint(Sketcher.Constraint("Symmetric", 26, 2, 37, 2, -2))
sketch1.addConstraint(Sketcher.Constraint("Symmetric", 21, 2, 42, 2, -2))
sketch1.addConstraint(Sketcher.Constraint("Symmetric", 19, 2, 44, 2, -2))
sketch1.addConstraint(Sketcher.Constraint("Symmetric", 17, 2, 46, 2, -2))
sketch1.addConstraint(Sketcher.Constraint("Symmetric", 73, 2, 77, 2, -2))
sketch1.addConstraint(Sketcher.Constraint("Symmetric", 72, 2, 78, 2, -2))
sketch1.addConstraint(Sketcher.Constraint("PointOnObject", 65, 1, -2))
sketch1.addConstraint(Sketcher.Constraint("PointOnObject", 70, 1, -1))
sketch1.addConstraint(Sketcher.Constraint("PointOnObject", 75, 1, -2))
sketch1.addConstraint(Sketcher.Constraint("PointOnObject", 80, 1, -1))
sketch1.addConstraint(Sketcher.Constraint("Parallel", 1, 15))
sketch1.addConstraint(Sketcher.Constraint("Perpendicular", 15, 17))
sketch1.addConstraint(Sketcher.Constraint("Parallel", 17, 31))
sketch1.addConstraint(Sketcher.Constraint("Perpendicular", 47, 49))
sketch1.addConstraint(Sketcher.Constraint("Parallel", 49, 63))
sketch1.addConstraint(Sketcher.Constraint("Perpendicular", 63, 64))
sketch1.addConstraint(Sketcher.Constraint("Perpendicular", 64, 67))
sketch1.addConstraint(Sketcher.Constraint("Perpendicular", 67, 68))
sketch1.addConstraint(Sketcher.Constraint("Perpendicular", 68, 69))
sketch1.addConstraint(Sketcher.Constraint("Perpendicular", 69, 72))
sketch1.addConstraint(Sketcher.Constraint("Perpendicular", 72, 73))
sketch1.addConstraint(Sketcher.Constraint("Perpendicular", 73, 74))
sketch1.addConstraint(Sketcher.Constraint("Perpendicular", 74, 77))
sketch1.addConstraint(Sketcher.Constraint("Perpendicular", 78, 79))
sketch1.addConstraint(Sketcher.Constraint("Perpendicular", 79, 82))
sketch1.addConstraint(Sketcher.Constraint("Horizontal", 56, 3, 2, 2))
sketch1.addConstraint(Sketcher.Constraint("Vertical", 7, 2, 12, 2))
sketch1.addConstraint(Sketcher.Constraint("Equal", 5, 10))
sketch1.addConstraint(Sketcher.Constraint("Equal", 50, 2))
sketch1.addConstraint(Sketcher.Constraint("Equal", 52, 4))
sketch1.addConstraint(Sketcher.Constraint("Equal", 57, 9))
sketch1.addConstraint(Sketcher.Constraint("Equal", 6, 11))
sketch1.addConstraint(Sketcher.Constraint("Equal", 61, 13))
sketch1.addConstraint(Sketcher.Constraint("Equal", 32, 16))
sketch1.addConstraint(Sketcher.Constraint("Equal", 1, 15))
sketch1.addConstraint(Sketcher.Constraint("Equal", 67, 69))
sketch1.addConstraint(Sketcher.Constraint("Radius", 8, 1.500001))
sketch1.addConstraint(Sketcher.Constraint("DistanceX", 3, 1, 3, 2, 3.0))
sketch1.addConstraint(Sketcher.Constraint("DistanceX", 7, 2, 7, 1, 5.0))
sketch1.addConstraint(Sketcher.Constraint("DistanceX", 12, 1, 12, 2, 1.0))
sketch1.addConstraint(Sketcher.Constraint("DistanceX", 1, 2, -1, 1, 6.0))
sketch1.addConstraint(Sketcher.Constraint("Distance", 68, 1.5))
sketch1.addConstraint(Sketcher.Constraint("DistanceY", -1, 1, 0, 2, 4.5))
sketch1.addConstraint(Sketcher.Constraint("Distance", 64, 0.88))
sketch1.addConstraint(Sketcher.Constraint("DistanceY", -1, 1, 65, 1, 2.75))
sketch1.addConstraint(Sketcher.Constraint("DistanceX", 0, 2, 0, 1, 6.87868))
sketch1.setExpression("Constraints[209]", "Params.sketch1_radius")
sketch1.setExpression("Constraints[210]", "Params.sketch1_width")
sketch1.setExpression("Constraints[211]", "Params.sketch1_width2")
sketch1.setExpression("Constraints[212]", "Params.sketch1_width3")
sketch1.setExpression("Constraints[214]", "Params.sketch1_length")
pad1 = doc.addObject("PartDesign::Pad", "Pad")
body.addObject(pad1)
pad1.Profile = sketch1
pad1.setExpression("Length", "Params.pad1_length")

doc.recompute()
